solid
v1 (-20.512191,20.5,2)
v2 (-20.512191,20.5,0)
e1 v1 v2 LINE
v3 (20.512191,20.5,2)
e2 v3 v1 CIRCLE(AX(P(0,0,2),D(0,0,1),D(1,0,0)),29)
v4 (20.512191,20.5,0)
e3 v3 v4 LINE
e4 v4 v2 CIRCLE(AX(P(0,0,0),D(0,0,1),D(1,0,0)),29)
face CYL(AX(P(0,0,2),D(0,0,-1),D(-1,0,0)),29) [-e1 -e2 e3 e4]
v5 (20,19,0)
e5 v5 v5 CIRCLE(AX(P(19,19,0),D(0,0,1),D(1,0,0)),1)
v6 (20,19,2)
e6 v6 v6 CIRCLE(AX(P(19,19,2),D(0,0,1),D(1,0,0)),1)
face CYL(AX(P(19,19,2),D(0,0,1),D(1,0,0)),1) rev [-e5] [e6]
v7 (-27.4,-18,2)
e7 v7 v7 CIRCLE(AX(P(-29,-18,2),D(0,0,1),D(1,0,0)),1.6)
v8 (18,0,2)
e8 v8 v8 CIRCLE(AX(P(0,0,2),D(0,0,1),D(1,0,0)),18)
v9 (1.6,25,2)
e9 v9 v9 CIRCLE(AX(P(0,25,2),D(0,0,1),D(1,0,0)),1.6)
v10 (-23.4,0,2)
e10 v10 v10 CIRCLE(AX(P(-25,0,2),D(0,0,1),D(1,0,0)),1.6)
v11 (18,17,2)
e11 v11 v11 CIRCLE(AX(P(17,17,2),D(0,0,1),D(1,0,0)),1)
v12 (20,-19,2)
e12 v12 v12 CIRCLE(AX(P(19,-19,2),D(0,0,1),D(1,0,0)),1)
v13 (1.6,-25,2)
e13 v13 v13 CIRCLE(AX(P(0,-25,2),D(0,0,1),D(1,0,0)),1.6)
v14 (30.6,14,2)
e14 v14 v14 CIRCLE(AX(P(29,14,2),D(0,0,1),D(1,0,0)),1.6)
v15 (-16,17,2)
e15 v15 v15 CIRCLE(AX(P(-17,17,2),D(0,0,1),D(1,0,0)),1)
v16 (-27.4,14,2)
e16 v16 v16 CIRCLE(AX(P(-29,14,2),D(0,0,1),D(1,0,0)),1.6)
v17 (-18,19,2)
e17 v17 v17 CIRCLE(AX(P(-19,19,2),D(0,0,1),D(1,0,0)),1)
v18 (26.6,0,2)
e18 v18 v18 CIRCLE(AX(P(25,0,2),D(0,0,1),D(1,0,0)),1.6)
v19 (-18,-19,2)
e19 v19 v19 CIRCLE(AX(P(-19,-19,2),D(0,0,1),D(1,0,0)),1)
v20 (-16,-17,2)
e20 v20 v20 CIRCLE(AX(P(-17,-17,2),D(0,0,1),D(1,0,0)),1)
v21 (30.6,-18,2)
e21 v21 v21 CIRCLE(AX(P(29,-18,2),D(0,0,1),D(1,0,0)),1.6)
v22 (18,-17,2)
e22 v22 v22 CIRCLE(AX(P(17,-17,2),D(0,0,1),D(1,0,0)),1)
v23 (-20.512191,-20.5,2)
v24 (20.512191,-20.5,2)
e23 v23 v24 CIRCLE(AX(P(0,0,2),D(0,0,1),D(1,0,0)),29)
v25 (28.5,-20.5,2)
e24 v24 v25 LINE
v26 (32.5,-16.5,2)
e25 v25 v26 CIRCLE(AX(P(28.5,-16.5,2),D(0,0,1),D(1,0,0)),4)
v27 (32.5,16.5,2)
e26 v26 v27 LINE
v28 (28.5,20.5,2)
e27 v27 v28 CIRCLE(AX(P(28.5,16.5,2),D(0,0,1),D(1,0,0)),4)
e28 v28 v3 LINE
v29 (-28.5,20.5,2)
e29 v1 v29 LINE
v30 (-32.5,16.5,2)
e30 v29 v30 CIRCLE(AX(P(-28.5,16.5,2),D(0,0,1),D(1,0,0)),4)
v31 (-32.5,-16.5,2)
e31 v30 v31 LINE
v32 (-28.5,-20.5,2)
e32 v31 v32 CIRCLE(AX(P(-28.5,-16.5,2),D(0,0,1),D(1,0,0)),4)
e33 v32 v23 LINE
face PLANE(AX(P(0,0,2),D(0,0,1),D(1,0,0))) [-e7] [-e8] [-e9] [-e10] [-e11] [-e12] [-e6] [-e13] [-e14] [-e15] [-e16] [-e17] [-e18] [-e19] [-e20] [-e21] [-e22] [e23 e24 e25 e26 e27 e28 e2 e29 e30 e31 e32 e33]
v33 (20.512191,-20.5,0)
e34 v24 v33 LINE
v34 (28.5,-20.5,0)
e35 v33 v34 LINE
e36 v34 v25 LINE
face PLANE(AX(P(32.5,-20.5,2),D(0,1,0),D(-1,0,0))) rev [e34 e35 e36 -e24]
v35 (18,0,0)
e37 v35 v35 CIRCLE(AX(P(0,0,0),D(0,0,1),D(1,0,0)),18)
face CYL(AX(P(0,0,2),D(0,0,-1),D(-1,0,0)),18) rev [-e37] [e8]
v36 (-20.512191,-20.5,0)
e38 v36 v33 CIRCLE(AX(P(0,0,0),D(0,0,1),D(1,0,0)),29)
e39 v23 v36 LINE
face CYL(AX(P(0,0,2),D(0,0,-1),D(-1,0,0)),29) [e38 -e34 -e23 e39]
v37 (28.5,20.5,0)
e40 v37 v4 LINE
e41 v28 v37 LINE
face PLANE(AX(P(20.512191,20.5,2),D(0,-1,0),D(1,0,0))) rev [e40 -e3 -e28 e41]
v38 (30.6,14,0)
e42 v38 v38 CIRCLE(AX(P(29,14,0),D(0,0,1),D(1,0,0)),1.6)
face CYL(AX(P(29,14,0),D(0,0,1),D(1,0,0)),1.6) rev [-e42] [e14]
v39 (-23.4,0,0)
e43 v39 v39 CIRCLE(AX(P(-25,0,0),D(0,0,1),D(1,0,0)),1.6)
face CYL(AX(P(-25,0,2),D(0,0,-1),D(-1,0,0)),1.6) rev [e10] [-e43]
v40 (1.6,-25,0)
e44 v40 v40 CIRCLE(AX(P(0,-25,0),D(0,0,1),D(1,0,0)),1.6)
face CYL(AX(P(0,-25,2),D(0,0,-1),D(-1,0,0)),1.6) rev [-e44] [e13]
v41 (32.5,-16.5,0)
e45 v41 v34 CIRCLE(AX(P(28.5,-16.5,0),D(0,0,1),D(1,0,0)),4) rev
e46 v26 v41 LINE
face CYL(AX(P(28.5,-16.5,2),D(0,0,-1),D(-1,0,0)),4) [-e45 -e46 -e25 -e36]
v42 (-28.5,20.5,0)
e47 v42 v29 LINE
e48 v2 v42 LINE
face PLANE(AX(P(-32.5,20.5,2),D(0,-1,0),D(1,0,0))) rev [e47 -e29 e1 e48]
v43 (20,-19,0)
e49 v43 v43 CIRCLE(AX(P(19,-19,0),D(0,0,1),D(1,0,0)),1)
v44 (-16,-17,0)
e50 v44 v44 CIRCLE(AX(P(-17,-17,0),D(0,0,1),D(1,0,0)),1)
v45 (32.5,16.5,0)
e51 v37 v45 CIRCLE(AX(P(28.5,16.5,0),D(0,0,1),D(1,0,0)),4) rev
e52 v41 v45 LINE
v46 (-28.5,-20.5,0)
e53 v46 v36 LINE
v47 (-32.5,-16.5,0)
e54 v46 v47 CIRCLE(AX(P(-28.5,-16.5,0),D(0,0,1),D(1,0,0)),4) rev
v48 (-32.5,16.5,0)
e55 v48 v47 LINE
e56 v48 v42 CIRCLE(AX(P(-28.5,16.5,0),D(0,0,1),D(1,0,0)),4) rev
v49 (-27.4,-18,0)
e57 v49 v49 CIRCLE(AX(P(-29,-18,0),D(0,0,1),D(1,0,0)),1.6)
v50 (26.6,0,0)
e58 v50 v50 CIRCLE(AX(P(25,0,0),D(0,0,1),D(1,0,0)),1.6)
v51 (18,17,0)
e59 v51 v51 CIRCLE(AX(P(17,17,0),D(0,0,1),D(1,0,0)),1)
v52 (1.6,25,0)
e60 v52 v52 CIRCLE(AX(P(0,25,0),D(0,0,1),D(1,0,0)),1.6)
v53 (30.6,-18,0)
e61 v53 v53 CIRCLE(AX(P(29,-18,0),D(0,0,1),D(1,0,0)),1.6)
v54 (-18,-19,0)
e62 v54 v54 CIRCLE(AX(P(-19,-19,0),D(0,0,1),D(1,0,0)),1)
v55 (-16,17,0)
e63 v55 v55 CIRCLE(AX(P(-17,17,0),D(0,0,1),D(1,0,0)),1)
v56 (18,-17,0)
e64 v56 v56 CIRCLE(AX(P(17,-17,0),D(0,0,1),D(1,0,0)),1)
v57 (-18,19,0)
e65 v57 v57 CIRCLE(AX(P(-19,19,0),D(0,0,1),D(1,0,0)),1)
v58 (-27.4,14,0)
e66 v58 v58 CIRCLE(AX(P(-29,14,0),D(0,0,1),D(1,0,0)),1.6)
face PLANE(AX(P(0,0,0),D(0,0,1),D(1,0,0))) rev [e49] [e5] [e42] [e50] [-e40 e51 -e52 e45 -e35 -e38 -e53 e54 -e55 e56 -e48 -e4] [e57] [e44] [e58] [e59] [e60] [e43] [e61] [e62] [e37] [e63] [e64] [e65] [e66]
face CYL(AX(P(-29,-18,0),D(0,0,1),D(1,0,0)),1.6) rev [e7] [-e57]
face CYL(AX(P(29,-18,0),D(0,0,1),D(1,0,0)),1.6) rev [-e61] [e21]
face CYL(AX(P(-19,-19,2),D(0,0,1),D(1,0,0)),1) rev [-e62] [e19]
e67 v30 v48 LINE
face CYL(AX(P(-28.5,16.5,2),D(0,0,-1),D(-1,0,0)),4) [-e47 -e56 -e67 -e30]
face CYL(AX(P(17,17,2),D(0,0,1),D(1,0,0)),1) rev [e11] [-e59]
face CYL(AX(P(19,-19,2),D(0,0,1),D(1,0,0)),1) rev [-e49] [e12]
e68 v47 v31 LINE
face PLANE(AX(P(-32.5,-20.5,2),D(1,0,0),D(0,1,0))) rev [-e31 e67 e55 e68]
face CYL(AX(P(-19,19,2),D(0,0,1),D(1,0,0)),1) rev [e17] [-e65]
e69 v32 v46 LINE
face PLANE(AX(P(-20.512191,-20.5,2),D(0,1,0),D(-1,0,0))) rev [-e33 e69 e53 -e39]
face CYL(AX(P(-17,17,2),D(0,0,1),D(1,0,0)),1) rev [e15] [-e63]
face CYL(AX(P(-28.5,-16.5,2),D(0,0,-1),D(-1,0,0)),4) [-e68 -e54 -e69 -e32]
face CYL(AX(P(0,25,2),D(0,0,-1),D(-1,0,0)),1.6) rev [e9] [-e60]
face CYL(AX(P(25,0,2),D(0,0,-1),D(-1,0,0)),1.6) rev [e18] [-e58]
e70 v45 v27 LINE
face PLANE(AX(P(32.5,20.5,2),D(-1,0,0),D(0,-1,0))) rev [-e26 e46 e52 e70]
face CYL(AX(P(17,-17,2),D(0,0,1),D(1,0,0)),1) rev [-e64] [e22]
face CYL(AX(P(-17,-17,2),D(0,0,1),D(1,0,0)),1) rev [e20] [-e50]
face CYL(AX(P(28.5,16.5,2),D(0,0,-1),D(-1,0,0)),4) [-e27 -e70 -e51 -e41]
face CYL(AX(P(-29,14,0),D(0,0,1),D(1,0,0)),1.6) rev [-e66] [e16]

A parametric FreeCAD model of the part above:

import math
import FreeCAD as App
import Part
import Sketcher

V = App.Vector
Q = App.Units.Quantity


def edges_at(feature, points):
    """Names of the edges that pass closest to the given points."""
    edges = feature.Shape.Edges
    near = lambda p: min(range(len(edges)), key=lambda i: edges[i].distToShape(Part.Vertex(*p))[0])
    return sorted({f"Edge{near(p) + 1}" for p in points})

doc = App.newDocument("Part")
body = doc.addObject("PartDesign::Body", "Body")

# Sketch on XY plane
sketch1 = body.newObject("Sketcher::SketchObject", "Sketch")
sketch1.AttachmentSupport = (doc.getObject("XY_Plane"), [""])
sketch1.MapMode = "FlatFace"
sketch1.addGeometry(Part.LineSegment(V(-20.512191, 20.5, 0), V(-32.5, 20.5, 0)), False)
sketch1.addGeometry(Part.LineSegment(V(-32.5, 20.5, 0), V(-32.5, -20.5, 0)), False)
sketch1.addGeometry(Part.LineSegment(V(-32.5, -20.5, 0), V(-20.512191, -20.5, 0)), False)
sketch1.addGeometry(Part.ArcOfCircle(Part.Circle(V(0, 0, 0), V(0, 0, 1), 29), math.radians(-135.017032), math.radians(-44.982968)), False)
sketch1.addGeometry(Part.LineSegment(V(20.512191, -20.5, 0), V(32.5, -20.5, 0)), False)
sketch1.addGeometry(Part.LineSegment(V(32.5, -20.5, 0), V(32.5, 20.5, 0)), False)
sketch1.addGeometry(Part.LineSegment(V(32.5, 20.5, 0), V(20.512191, 20.5, 0)), False)
sketch1.addGeometry(Part.ArcOfCircle(Part.Circle(V(0, 0, 0), V(0, 0, 1), 29), math.radians(44.982968), math.radians(135.017032)), False)
sketch1.addGeometry(Part.Circle(V(0, 0, 0), V(0, 0, 1), 18), False)
sketch1.addConstraint(Sketcher.Constraint("Coincident", 0, 2, 1, 1))
sketch1.addConstraint(Sketcher.Constraint("Coincident", 1, 2, 2, 1))
sketch1.addConstraint(Sketcher.Constraint("Coincident", 2, 2, 3, 1))
sketch1.addConstraint(Sketcher.Constraint("Coincident", 3, 2, 4, 1))
sketch1.addConstraint(Sketcher.Constraint("Coincident", 4, 2, 5, 1))
sketch1.addConstraint(Sketcher.Constraint("Coincident", 5, 2, 6, 1))
sketch1.addConstraint(Sketcher.Constraint("Coincident", 6, 2, 7, 1))
sketch1.addConstraint(Sketcher.Constraint("Coincident", 7, 2, 0, 1))
sketch1.addConstraint(Sketcher.Constraint("Horizontal", 0))
sketch1.addConstraint(Sketcher.Constraint("Vertical", 1))
sketch1.addConstraint(Sketcher.Constraint("Horizontal", 2))
sketch1.addConstraint(Sketcher.Constraint("Horizontal", 4))
sketch1.addConstraint(Sketcher.Constraint("Vertical", 5))
sketch1.addConstraint(Sketcher.Constraint("Horizontal", 6))
sketch1.addConstraint(Sketcher.Constraint("Coincident", 3, 3, -1, 1))
sketch1.addConstraint(Sketcher.Constraint("Coincident", 7, 3, -1, 1))
sketch1.addConstraint(Sketcher.Constraint("Coincident", 8, 3, -1, 1))
sketch1.addConstraint(Sketcher.Constraint("Equal", 3, 7))
sketch1.addConstraint(Sketcher.Constraint("Symmetric", 0, 2, 4, 2, -1, 1))
sketch1.addConstraint(Sketcher.Constraint("Horizontal", 2, 2, 3, 2))
sketch1.addConstraint(Sketcher.Constraint("Horizontal", 0, 2, 5, 2))
sketch1.addConstraint(Sketcher.Constraint("Diameter", 8, Q("36 mm")))
sketch1.addConstraint(Sketcher.Constraint("Radius", 3, Q("29 mm")))
sketch1.addConstraint(Sketcher.Constraint("DistanceY", 1, 2, 1, 1, Q("41 mm")))
sketch1.addConstraint(Sketcher.Constraint("DistanceX", 0, 2, -1, 1, Q("32.5 mm")))
pad1 = body.newObject("PartDesign::Pad", "Pad")
pad1.Profile = sketch1
pad1.Length = 2

# Sketch on XY plane
sketch2 = body.newObject("Sketcher::SketchObject", "Sketch001")
sketch2.AttachmentSupport = (doc.getObject("XY_Plane"), [""])
sketch2.MapMode = "FlatFace"
sketch2.AttachmentOffset = App.Placement(V(0, 0, 2), App.Rotation())
sketch2.addGeometry(Part.Circle(V(-29, 14, 0), V(0, 0, 1), 1.6), False)
sketch2.addGeometry(Part.Circle(V(-29, -18, 0), V(0, 0, 1), 1.6), False)
sketch2.addGeometry(Part.Circle(V(29, -18, 0), V(0, 0, 1), 1.6), False)
sketch2.addGeometry(Part.Circle(V(29, 14, 0), V(0, 0, 1), 1.6), False)
sketch2.addConstraint(Sketcher.Constraint("Equal", 0, 1))
sketch2.addConstraint(Sketcher.Constraint("Equal", 1, 2))
sketch2.addConstraint(Sketcher.Constraint("Equal", 2, 3))
sketch2.addConstraint(Sketcher.Constraint("Symmetric", 1, 3, 2, 3, -2))
sketch2.addConstraint(Sketcher.Constraint("Symmetric", 0, 3, 3, 3, -2))
sketch2.addConstraint(Sketcher.Constraint("Vertical", 0, 3, 1, 3))
sketch2.addConstraint(Sketcher.Constraint("Diameter", 0, Q("3.2 mm")))
sketch2.addConstraint(Sketcher.Constraint("DistanceX", 0, 3, -1, 1, Q("29 mm")))
sketch2.addConstraint(Sketcher.Constraint("DistanceY", -1, 1, 0, 3, Q("14 mm")))
sketch2.addConstraint(Sketcher.Constraint("DistanceY", 1, 3, -1, 1, Q("18 mm")))
pocket1 = body.newObject("PartDesign::Pocket", "Pocket")
pocket1.Profile = sketch2
pocket1.Length = 2

# Sketch on XY plane
sketch3 = body.newObject("Sketcher::SketchObject", "Sketch002")
sketch3.AttachmentSupport = (doc.getObject("XY_Plane"), [""])
sketch3.MapMode = "FlatFace"
sketch3.AttachmentOffset = App.Placement(V(0, 0, 2), App.Rotation())
sketch3.addGeometry(Part.Circle(V(-19, 19, 0), V(0, 0, 1), 1), False)
sketch3.addGeometry(Part.Circle(V(-17, 17, 0), V(0, 0, 1), 1), False)
sketch3.addGeometry(Part.Circle(V(17, 17, 0), V(0, 0, 1), 1), False)
sketch3.addGeometry(Part.Circle(V(19, 19, 0), V(0, 0, 1), 1), False)
sketch3.addGeometry(Part.Circle(V(17, -17, 0), V(0, 0, 1), 1), False)
sketch3.addGeometry(Part.Circle(V(19, -19, 0), V(0, 0, 1), 1), False)
sketch3.addGeometry(Part.Circle(V(-19, -19, 0), V(0, 0, 1), 1), False)
sketch3.addGeometry(Part.Circle(V(-17, -17, 0), V(0, 0, 1), 1), False)
sketch3.addConstraint(Sketcher.Constraint("Equal", 0, 1))
sketch3.addConstraint(Sketcher.Constraint("Equal", 1, 2))
sketch3.addConstraint(Sketcher.Constraint("Equal", 2, 3))
sketch3.addConstraint(Sketcher.Constraint("Equal", 3, 4))
sketch3.addConstraint(Sketcher.Constraint("Equal", 4, 5))
sketch3.addConstraint(Sketcher.Constraint("Equal", 5, 6))
sketch3.addConstraint(Sketcher.Constraint("Equal", 6, 7))
sketch3.addConstraint(Sketcher.Constraint("Symmetric", 1, 3, 4, 3, -1, 1))
sketch3.addConstraint(Sketcher.Constraint("Symmetric", 0, 3, 5, 3, -1, 1))
sketch3.addConstraint(Sketcher.Constraint("Symmetric", 3, 3, 6, 3, -1, 1))
sketch3.addConstraint(Sketcher.Constraint("Symmetric", 2, 3, 7, 3, -1, 1))
sketch3.addConstraint(Sketcher.Constraint("Symmetric", 1, 3, 2, 3, -2))
sketch3.addConstraint(Sketcher.Constraint("Symmetric", 0, 3, 3, 3, -2))
sketch3.addConstraint(Sketcher.Constraint("Diameter", 0, Q("2 mm")))
sketch3.addConstraint(Sketcher.Constraint("DistanceX", 0, 3, -1, 1, Q("19 mm")))
sketch3.addConstraint(Sketcher.Constraint("DistanceY", -1, 1, 0, 3, Q("19 mm")))
sketch3.addConstraint(Sketcher.Constraint("DistanceX", 1, 3, -1, 1, Q("17 mm")))
sketch3.addConstraint(Sketcher.Constraint("DistanceY", -1, 1, 1, 3, Q("17 mm")))
doc.recompute()
hole = body.newObject("PartDesign::Hole", "Hole")
hole.Profile = sketch3
hole.ThreadType = "None"
hole.Diameter = 2
hole.DepthType = "ThroughAll"

# Sketch on XY plane
sketch4 = body.newObject("Sketcher::SketchObject", "Sketch003")
sketch4.AttachmentSupport = (doc.getObject("XY_Plane"), [""])
sketch4.MapMode = "FlatFace"
sketch4.addGeometry(Part.Circle(V(0, 25, 0), V(0, 0, 1), 1.6), False)
sketch4.addGeometry(Part.Circle(V(-25, 0, 0), V(0, 0, 1), 1.6), False)
sketch4.addGeometry(Part.Circle(V(25, 0, 0), V(0, 0, 1), 1.6), False)
sketch4.addGeometry(Part.Circle(V(0, -25, 0), V(0, 0, 1), 1.6), False)
sketch4.addConstraint(Sketcher.Constraint("Equal", 0, 1))
sketch4.addConstraint(Sketcher.Constraint("Equal", 1, 2))
sketch4.addConstraint(Sketcher.Constraint("Equal", 2, 3))
sketch4.addConstraint(Sketcher.Constraint("Symmetric", 1, 3, 2, 3, -1, 1))
sketch4.addConstraint(Sketcher.Constraint("Symmetric", 0, 3, 3, 3, -1, 1))
sketch4.addConstraint(Sketcher.Constraint("PointOnObject", 0, 3, -2))
sketch4.addConstraint(Sketcher.Constraint("PointOnObject", 1, 3, -1))
sketch4.addConstraint(Sketcher.Constraint("Diameter", 0, Q("3.2 mm")))
sketch4.addConstraint(Sketcher.Constraint("DistanceY", -1, 1, 0, 3, Q("25 mm")))
sketch4.addConstraint(Sketcher.Constraint("DistanceX", 1, 3, -1, 1, Q("25 mm")))
pocket2 = body.newObject("PartDesign::Pocket", "Pocket001")
pocket2.Profile = sketch4
pocket2.Type = "ThroughAll"
pocket2.Reversed = True
doc.recompute()

fillet = body.newObject("PartDesign::Fillet", "Fillet")
fillet.Base = (pocket2, edges_at(pocket2, [
    (-32.5, -20.5, 1),
    (-32.5, 20.5, 1),
    (32.5, 20.5, 1),
    (32.5, -20.5, 1),
]))
fillet.Radius = 4

doc.recompute()
